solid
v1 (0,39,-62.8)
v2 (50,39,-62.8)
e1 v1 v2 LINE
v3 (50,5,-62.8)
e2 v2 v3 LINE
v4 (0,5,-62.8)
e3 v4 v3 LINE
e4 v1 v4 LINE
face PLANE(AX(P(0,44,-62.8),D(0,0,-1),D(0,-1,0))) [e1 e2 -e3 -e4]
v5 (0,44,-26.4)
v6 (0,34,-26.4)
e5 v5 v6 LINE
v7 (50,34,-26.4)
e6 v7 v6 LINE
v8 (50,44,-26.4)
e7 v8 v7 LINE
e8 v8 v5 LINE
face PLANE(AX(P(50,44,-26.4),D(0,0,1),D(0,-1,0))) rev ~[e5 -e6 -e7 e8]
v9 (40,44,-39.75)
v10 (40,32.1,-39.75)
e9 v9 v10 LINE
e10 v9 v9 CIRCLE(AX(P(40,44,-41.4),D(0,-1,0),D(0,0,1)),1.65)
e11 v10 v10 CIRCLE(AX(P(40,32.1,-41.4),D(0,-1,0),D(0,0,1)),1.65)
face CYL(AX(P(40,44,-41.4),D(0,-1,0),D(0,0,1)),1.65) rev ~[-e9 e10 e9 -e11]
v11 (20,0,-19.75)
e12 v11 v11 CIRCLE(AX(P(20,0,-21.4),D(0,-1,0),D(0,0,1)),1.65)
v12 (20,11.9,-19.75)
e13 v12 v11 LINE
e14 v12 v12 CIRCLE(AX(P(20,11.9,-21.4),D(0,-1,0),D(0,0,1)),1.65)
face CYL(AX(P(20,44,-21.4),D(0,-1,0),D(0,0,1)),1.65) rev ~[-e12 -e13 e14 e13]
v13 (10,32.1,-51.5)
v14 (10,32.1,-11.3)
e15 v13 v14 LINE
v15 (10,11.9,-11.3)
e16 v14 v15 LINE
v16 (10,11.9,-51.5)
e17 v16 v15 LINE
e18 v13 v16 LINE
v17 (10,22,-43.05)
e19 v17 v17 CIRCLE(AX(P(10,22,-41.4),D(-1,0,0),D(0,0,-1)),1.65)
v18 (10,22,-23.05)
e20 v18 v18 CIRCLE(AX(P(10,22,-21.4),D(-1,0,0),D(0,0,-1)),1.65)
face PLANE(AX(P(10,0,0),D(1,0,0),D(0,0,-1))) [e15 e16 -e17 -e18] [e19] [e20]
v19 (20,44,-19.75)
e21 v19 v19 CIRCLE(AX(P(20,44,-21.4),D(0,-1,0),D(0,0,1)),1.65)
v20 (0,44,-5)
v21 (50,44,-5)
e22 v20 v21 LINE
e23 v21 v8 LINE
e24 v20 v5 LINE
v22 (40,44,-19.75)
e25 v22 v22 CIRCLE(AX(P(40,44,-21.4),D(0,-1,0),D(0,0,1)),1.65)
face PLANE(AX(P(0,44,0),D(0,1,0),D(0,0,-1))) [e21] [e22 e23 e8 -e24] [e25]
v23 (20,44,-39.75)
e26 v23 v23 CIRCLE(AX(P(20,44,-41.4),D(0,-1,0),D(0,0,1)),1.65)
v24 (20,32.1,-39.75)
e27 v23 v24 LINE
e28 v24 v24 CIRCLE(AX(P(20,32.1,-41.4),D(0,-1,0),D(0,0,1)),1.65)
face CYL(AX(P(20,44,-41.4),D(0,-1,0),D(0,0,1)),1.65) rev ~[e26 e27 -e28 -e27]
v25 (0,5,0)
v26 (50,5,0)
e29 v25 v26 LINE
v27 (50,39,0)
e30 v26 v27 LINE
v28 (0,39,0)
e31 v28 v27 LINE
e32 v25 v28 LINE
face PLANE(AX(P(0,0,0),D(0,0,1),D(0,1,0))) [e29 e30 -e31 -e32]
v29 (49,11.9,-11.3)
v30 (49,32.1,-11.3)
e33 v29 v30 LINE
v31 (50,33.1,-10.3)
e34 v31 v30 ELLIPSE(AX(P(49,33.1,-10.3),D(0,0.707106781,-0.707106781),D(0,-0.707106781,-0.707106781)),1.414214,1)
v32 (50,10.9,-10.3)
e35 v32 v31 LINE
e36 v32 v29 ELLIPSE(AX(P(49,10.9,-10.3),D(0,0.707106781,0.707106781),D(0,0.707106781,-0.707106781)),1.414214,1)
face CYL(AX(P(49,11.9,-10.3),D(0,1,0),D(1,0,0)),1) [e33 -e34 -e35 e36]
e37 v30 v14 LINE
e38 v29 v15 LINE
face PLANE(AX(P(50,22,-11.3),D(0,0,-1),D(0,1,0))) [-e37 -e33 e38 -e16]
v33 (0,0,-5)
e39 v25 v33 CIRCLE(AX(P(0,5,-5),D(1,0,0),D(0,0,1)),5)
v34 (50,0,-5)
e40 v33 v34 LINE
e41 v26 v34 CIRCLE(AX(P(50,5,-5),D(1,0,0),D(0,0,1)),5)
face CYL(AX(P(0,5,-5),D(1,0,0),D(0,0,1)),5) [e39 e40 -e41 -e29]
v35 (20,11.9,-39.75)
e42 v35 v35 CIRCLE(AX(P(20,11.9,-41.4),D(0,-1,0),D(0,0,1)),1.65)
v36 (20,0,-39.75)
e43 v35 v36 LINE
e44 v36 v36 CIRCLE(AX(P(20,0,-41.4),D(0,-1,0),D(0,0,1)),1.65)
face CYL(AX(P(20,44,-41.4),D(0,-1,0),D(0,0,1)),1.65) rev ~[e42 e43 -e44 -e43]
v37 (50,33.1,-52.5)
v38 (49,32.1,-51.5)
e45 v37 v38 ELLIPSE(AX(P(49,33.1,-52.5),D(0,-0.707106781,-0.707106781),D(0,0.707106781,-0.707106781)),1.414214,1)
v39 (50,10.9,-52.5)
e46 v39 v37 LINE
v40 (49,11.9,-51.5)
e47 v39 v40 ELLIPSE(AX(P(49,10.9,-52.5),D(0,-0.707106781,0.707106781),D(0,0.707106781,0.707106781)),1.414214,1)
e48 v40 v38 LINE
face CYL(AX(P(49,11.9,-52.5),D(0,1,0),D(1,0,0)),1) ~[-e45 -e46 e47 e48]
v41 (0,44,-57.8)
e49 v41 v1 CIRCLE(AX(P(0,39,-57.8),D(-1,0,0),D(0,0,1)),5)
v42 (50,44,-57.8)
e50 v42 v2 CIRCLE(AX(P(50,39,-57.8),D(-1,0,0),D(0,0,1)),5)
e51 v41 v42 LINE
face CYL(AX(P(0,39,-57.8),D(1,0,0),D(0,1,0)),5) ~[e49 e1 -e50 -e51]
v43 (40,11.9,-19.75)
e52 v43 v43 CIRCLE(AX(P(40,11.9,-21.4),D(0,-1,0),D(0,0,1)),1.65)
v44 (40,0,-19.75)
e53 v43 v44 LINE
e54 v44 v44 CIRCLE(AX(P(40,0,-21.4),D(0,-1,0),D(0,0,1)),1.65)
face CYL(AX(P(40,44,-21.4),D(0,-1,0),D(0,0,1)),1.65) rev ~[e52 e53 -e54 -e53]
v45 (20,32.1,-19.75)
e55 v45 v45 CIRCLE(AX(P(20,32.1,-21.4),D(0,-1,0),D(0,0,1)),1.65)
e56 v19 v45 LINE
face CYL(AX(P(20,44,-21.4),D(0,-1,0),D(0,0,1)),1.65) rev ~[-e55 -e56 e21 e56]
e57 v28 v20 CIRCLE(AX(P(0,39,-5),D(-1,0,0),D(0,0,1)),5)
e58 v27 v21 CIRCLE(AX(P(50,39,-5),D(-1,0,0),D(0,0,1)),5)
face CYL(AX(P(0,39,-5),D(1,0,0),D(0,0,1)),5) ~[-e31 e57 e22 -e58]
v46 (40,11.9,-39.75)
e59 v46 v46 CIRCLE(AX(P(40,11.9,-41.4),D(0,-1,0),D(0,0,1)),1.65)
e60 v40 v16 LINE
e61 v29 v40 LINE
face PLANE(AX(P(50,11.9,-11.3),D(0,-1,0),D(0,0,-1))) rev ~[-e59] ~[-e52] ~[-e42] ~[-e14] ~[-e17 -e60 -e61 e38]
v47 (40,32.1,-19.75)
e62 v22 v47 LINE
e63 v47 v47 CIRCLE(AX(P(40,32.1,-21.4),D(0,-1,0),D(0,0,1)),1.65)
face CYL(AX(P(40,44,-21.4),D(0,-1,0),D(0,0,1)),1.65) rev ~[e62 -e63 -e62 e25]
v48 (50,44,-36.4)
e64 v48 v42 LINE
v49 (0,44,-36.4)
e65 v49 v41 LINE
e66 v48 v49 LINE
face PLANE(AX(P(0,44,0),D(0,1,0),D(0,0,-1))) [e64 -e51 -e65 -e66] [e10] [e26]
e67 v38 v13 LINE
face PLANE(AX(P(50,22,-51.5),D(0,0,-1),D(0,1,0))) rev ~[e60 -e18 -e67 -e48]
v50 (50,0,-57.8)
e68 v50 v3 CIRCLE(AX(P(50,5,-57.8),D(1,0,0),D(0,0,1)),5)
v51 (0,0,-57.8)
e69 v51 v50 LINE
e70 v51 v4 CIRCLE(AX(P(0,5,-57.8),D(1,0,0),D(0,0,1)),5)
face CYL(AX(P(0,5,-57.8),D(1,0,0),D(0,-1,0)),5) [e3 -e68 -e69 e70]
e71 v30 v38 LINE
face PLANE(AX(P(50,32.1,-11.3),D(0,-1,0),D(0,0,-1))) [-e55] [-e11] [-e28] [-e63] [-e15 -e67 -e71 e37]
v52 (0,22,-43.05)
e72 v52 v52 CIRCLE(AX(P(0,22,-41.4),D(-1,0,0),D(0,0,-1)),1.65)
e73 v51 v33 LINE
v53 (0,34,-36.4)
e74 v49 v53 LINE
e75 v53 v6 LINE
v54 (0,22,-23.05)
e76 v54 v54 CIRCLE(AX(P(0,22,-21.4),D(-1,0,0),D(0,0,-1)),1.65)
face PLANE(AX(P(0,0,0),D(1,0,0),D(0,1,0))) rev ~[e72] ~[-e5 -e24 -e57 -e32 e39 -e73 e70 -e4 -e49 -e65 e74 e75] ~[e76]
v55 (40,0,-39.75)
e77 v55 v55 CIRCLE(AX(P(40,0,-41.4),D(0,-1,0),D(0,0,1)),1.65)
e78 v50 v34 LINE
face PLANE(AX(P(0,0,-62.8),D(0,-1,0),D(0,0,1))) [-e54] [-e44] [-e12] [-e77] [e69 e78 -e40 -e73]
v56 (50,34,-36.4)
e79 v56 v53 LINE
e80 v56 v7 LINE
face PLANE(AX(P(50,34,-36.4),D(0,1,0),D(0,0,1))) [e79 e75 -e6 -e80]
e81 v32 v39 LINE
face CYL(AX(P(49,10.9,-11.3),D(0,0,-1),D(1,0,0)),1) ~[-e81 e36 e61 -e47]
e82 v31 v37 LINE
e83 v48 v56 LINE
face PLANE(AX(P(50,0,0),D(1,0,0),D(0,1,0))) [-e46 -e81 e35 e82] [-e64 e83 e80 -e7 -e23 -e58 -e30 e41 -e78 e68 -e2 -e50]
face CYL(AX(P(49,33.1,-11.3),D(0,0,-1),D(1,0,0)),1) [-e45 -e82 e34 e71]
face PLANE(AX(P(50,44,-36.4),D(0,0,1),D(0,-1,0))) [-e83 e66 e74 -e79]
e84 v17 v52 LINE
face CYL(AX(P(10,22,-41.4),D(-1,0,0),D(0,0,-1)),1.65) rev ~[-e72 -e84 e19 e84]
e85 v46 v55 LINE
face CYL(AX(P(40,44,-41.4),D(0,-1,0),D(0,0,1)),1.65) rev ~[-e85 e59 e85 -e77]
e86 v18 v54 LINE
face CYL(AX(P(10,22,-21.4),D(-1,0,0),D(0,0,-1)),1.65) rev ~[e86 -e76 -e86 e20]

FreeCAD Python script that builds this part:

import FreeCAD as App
import Part
import Sketcher

V = App.Vector
Q = App.Units.Quantity


def edges_at(feature, points):
    """Names of the edges that pass closest to the given points."""
    edges = feature.Shape.Edges
    near = lambda p: min(range(len(edges)), key=lambda i: edges[i].distToShape(Part.Vertex(*p))[0])
    return sorted({f"Edge{near(p) + 1}" for p in points})

doc = App.newDocument("Part")
body = doc.addObject("PartDesign::Body", "Body")

sketch1 = body.newObject("Sketcher::SketchObject", "Sketch")
sketch1.AttachmentSupport = (doc.getObject("YZ_Plane"), [""])
sketch1.MapMode = "FlatFace"
sketch1.addGeometry([
    Part.LineSegment(V(44, 0, 0), V(0, 0, 0)),
    Part.LineSegment(V(0, 0, 0), V(0, -63, 0)),
    Part.LineSegment(V(0, -63, 0), V(44, -63, 0)),
    Part.LineSegment(V(44, -63, 0), V(44, 0, 0)),
], False)
sketch1.addConstraint([
    Sketcher.Constraint("Coincident", 0, 2, 1, 1),
    Sketcher.Constraint("Coincident", 1, 2, 2, 1),
    Sketcher.Constraint("Coincident", 2, 2, 3, 1),
    Sketcher.Constraint("Coincident", 3, 2, 0, 1),
    Sketcher.Constraint("Horizontal", 0),
    Sketcher.Constraint("Vertical", 1),
    Sketcher.Constraint("Horizontal", 2),
    Sketcher.Constraint("Vertical", 3),
    Sketcher.Constraint("Coincident", 0, 2, -1, 1),
    Sketcher.Constraint("DistanceX", 0, 2, 0, 1, Q("44 mm")),
    Sketcher.Constraint("DistanceY", 1, 2, 1, 1, Q("62.8 mm")),
])
pad1 = body.newObject("PartDesign::Pad", "Pad")
pad1.Profile = sketch1
pad1.Length = 50

sketch2 = body.newObject("Sketcher::SketchObject", "Sketch001")
sketch2.AttachmentSupport = (doc.getObject("YZ_Plane"), [""])
sketch2.MapMode = "FlatFace"
sketch2.AttachmentOffset = App.Placement(V(0, 0, 50), App.Rotation())
sketch2.addGeometry([
    Part.LineSegment(V(32, -11, 0), V(12, -11, 0)),
    Part.LineSegment(V(12, -11, 0), V(12, -52, 0)),
    Part.LineSegment(V(12, -52, 0), V(32, -52, 0)),
    Part.LineSegment(V(32, -52, 0), V(32, -11, 0)),
], False)
sketch2.addConstraint([
    Sketcher.Constraint("Coincident", 0, 2, 1, 1),
    Sketcher.Constraint("Coincident", 1, 2, 2, 1),
    Sketcher.Constraint("Coincident", 2, 2, 3, 1),
    Sketcher.Constraint("Coincident", 3, 2, 0, 1),
    Sketcher.Constraint("Horizontal", 0),
    Sketcher.Constraint("Vertical", 1),
    Sketcher.Constraint("Horizontal", 2),
    Sketcher.Constraint("Vertical", 3),
    Sketcher.Constraint("DistanceX", 0, 2, 0, 1, Q("20.2 mm")),
    Sketcher.Constraint("DistanceY", 1, 2, 1, 1, Q("40.2 mm")),
    Sketcher.Constraint("DistanceX", -1, 1, 0, 2, Q("11.9 mm")),
    Sketcher.Constraint("DistanceY", 0, 2, -1, 1, Q("11.3 mm")),
])
pocket1 = body.newObject("PartDesign::Pocket", "Pocket")
pocket1.Profile = sketch2
pocket1.Length = 40

sketch3 = body.newObject("Sketcher::SketchObject", "Sketch002")
sketch3.AttachmentSupport = (doc.getObject("XZ_Plane"), [""])
sketch3.MapMode = "FlatFace"
sketch3.AttachmentOffset = App.Placement(V(0, 0, -44), App.Rotation())
sketch3.addGeometry([
    Part.Circle(V(20, -41.4, 0), V(0, 0, 1), 1.6),
    Part.Circle(V(40, -41.4, 0), V(0, 0, 1), 1.6),
    Part.Circle(V(20, -21.4, 0), V(0, 0, 1), 1.6),
    Part.Circle(V(40, -21.4, 0), V(0, 0, 1), 1.6),
], False)
sketch3.addConstraint([
    Sketcher.Constraint("Equal", 0, 1),
    Sketcher.Constraint("Equal", 1, 2),
    Sketcher.Constraint("Equal", 2, 3),
    Sketcher.Constraint("Horizontal", 0, 3, 1, 3),
    Sketcher.Constraint("Horizontal", 2, 3, 3, 3),
    Sketcher.Constraint("Vertical", 0, 3, 2, 3),
    Sketcher.Constraint("Vertical", 1, 3, 3, 3),
    Sketcher.Constraint("Diameter", 0, Q("3.3 mm")),
    Sketcher.Constraint("DistanceX", -1, 1, 0, 3, Q("20 mm")),
    Sketcher.Constraint("DistanceX", -1, 1, 1, 3, Q("40 mm")),
    Sketcher.Constraint("DistanceY", 0, 3, 2, 3, Q("20 mm")),
    Sketcher.Constraint("DistanceY", 0, 3, -1, 1, Q("41.4 mm")),
])
doc.recompute()
hole = body.newObject("PartDesign::Hole", "Hole")
hole.Profile = sketch3
hole.ThreadType = "None"
hole.Diameter = 3.3
hole.DepthType = "ThroughAll"
hole.Reversed = True
doc.recompute()

fillet = body.newObject("PartDesign::Fillet", "Fillet")
fillet.Base = (hole, edges_at(hole, [
    (25, 44, 0),
    (25, 0, 0),
    (25, 0, -62.8),
    (25, 44, -62.8),
]))
fillet.Radius = 5

sketch4 = body.newObject("Sketcher::SketchObject", "Sketch003")
sketch4.AttachmentSupport = (doc.getObject("YZ_Plane"), [""])
sketch4.MapMode = "FlatFace"
sketch4.AttachmentOffset = App.Placement(V(0, 0, 10), App.Rotation())
sketch4.addGeometry([
    Part.Circle(V(22, -41.4, 0), V(0, 0, 1), 1.6),
    Part.Circle(V(22, -21.4, 0), V(0, 0, 1), 1.6),
], False)
sketch4.addConstraint([
    Sketcher.Constraint("Equal", 0, 1),
    Sketcher.Constraint("Vertical", 0, 3, 1, 3),
    Sketcher.Constraint("Diameter", 0, Q("3.3 mm")),
    Sketcher.Constraint("DistanceX", -1, 1, 0, 3, Q("22 mm")),
    Sketcher.Constraint("DistanceY", 0, 3, 1, 3, Q("20 mm")),
    Sketcher.Constraint("DistanceY", 0, 3, -1, 1, Q("41.4 mm")),
])
doc.recompute()
hole2 = body.newObject("PartDesign::Hole", "Hole001")
hole2.Profile = sketch4
hole2.ThreadType = "None"
hole2.Diameter = 3.3
hole2.DepthType = "ThroughAll"
doc.recompute()

fillet2 = body.newObject("PartDesign::Fillet", "Fillet001")
fillet2.Base = (hole2, edges_at(hole2, [
    (50, 22, -51.5),
    (50, 11.9, -31.4),
    (50, 32.1, -31.4),
    (50, 22, -11.3),
]))
fillet2.Radius = 1

sketch5 = body.newObject("Sketcher::SketchObject", "Sketch004")
sketch5.AttachmentSupport = (doc.getObject("YZ_Plane"), [""])
sketch5.MapMode = "FlatFace"
sketch5.AttachmentOffset = App.Placement(V(0, 0, 50), App.Rotation())
sketch5.addGeometry([
    Part.LineSegment(V(34, -36, 0), V(44, -36, 0)),
    Part.LineSegment(V(44, -36, 0), V(44, -26, 0)),
    Part.LineSegment(V(44, -26, 0), V(34, -26, 0)),
    Part.LineSegment(V(34, -26, 0), V(34, -36, 0)),
], False)
sketch5.addConstraint([
    Sketcher.Constraint("Coincident", 0, 2, 1, 1),
    Sketcher.Constraint("Coincident", 1, 2, 2, 1),
    Sketcher.Constraint("Coincident", 2, 2, 3, 1),
    Sketcher.Constraint("Coincident", 3, 2, 0, 1),
    Sketcher.Constraint("Horizontal", 0),
    Sketcher.Constraint("Vertical", 1),
    Sketcher.Constraint("Horizontal", 2),
    Sketcher.Constraint("Vertical", 3),
    Sketcher.Constraint("Equal", 2, 1),
    Sketcher.Constraint("DistanceX", 0, 1, 0, 2, Q("10 mm")),
    Sketcher.Constraint("DistanceX", -1, 1, 0, 2, Q("44 mm")),
    Sketcher.Constraint("DistanceY", 0, 2, -1, 1, Q("36.4 mm")),
])
pocket2 = body.newObject("PartDesign::Pocket", "Pocket001")
pocket2.Profile = sketch5
pocket2.Length = 100

doc.recompute()
